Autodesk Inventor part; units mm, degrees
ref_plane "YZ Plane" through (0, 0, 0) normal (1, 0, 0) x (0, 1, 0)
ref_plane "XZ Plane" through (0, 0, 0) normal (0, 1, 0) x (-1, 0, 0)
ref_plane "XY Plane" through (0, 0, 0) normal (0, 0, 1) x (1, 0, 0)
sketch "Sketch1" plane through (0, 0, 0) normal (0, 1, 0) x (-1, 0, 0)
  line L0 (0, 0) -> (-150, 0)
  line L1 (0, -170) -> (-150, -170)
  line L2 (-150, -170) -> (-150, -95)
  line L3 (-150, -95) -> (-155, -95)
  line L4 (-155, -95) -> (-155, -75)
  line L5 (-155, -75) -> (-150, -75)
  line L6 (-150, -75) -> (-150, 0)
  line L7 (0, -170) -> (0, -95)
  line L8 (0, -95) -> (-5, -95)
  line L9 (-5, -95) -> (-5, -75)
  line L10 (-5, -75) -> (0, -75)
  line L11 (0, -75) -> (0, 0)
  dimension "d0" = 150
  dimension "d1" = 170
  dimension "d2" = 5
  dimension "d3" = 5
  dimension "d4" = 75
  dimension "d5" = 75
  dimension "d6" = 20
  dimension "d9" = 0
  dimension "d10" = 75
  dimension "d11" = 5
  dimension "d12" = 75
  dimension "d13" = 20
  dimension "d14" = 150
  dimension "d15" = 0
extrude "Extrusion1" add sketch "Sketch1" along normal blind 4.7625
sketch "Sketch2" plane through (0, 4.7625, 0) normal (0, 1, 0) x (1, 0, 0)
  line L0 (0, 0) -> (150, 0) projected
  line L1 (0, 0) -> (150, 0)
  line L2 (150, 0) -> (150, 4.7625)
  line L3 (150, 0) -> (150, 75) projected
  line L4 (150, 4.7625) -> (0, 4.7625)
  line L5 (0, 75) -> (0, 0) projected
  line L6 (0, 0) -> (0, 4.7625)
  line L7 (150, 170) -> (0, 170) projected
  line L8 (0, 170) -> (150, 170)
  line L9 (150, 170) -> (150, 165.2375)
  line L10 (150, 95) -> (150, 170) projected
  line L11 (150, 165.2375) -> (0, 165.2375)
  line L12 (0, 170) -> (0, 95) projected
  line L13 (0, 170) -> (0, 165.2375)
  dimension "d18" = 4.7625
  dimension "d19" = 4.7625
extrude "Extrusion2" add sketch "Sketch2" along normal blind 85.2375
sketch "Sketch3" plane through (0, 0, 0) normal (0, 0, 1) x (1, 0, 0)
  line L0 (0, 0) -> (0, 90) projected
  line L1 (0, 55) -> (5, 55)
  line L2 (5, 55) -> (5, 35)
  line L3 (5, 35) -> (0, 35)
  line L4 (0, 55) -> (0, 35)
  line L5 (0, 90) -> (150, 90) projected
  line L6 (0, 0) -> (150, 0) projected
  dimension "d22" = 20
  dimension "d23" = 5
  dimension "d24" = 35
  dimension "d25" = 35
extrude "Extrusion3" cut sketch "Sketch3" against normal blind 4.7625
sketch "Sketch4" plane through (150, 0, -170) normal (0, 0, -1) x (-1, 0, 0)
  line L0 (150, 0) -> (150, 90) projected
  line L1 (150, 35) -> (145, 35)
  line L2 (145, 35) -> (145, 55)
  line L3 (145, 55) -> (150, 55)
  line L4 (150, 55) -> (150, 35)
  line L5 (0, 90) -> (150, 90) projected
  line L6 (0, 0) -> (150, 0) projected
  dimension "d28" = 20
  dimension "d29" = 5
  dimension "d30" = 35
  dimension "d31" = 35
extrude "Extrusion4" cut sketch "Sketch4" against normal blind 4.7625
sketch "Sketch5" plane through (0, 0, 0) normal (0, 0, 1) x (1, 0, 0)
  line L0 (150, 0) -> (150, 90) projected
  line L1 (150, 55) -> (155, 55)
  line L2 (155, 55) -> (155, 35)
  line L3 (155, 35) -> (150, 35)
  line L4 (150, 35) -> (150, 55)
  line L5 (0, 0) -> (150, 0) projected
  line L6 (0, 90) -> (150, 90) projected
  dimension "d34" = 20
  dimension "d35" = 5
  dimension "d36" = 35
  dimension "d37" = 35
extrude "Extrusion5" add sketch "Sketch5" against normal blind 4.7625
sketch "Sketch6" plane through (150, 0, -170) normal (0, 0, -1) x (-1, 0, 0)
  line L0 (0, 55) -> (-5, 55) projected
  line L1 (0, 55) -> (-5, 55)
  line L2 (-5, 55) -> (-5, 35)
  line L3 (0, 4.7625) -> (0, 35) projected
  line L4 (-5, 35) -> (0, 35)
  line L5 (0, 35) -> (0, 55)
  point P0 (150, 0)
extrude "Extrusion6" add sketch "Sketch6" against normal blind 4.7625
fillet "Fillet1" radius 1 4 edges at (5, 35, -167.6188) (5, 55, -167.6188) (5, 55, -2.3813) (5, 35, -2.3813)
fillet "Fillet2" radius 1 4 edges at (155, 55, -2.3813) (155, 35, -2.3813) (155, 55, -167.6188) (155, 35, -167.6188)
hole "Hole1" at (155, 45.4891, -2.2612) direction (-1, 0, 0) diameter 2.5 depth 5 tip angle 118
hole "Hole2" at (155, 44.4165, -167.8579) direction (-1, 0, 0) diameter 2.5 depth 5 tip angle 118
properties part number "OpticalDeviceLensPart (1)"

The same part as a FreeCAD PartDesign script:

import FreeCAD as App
import Part
import Sketcher
Q = App.Units.Quantity


def edges_at(feature, points):
    """Names of the edges that pass closest to the given points."""
    edges = feature.Shape.Edges
    near = lambda p: min(range(len(edges)), key=lambda i: edges[i].distToShape(Part.Vertex(*p))[0])
    return sorted({f"Edge{near(p) + 1}" for p in points})


def add_polygon(sketch, points):
    """Adds a closed chain of lines whose ends are joined by coincident constraints."""
    first, n = sketch.GeometryCount, len(points)
    for a, b in zip(points, points[1:] + points[:1]):
        sketch.addGeometry(Part.LineSegment(App.Vector(*a, 0), App.Vector(*b, 0)), False)
    for i in range(n):
        sketch.addConstraint(Sketcher.Constraint("Coincident", first + i, 2, first + (i + 1) % n, 1))

doc = App.newDocument("Part")
body = doc.addObject("PartDesign::Body", "Body")

sketch1 = body.newObject("Sketcher::SketchObject", "Sketch")
sketch1.AttachmentSupport = (doc.getObject("XZ_Plane"), [""])
sketch1.MapMode = "FlatFace"
add_polygon(sketch1, [(0, -75), (0, 0), (150, 0), (150, -75), (155, -75), (155, -95), (150, -95), (150, -170), (0, -170), (0, -95), (5, -95), (5, -75)])
sketch1.addConstraint(Sketcher.Constraint("Vertical", 0))
sketch1.addConstraint(Sketcher.Constraint("Horizontal", 1))
sketch1.addConstraint(Sketcher.Constraint("Vertical", 2))
sketch1.addConstraint(Sketcher.Constraint("Horizontal", 3))
sketch1.addConstraint(Sketcher.Constraint("Vertical", 4))
sketch1.addConstraint(Sketcher.Constraint("Horizontal", 5))
sketch1.addConstraint(Sketcher.Constraint("Vertical", 6))
sketch1.addConstraint(Sketcher.Constraint("Horizontal", 7))
sketch1.addConstraint(Sketcher.Constraint("Vertical", 8))
sketch1.addConstraint(Sketcher.Constraint("Horizontal", 9))
sketch1.addConstraint(Sketcher.Constraint("Vertical", 10))
sketch1.addConstraint(Sketcher.Constraint("Horizontal", 11))
sketch1.addConstraint(Sketcher.Constraint("Coincident", 0, 2, -1, 1))
sketch1.addConstraint(Sketcher.Constraint("PointOnObject", 7, 2, -2))
sketch1.addConstraint(Sketcher.Constraint("Horizontal", 5, 2, 8, 2))
sketch1.addConstraint(Sketcher.Constraint("Horizontal", 3, 2, 10, 2))
sketch1.addConstraint(Sketcher.Constraint("Vertical", 2, 2, 5, 2))
sketch1.addConstraint(Sketcher.Constraint("Equal", 5, 9))
sketch1.addConstraint(Sketcher.Constraint("Equal", 2, 6))
sketch1.addConstraint(Sketcher.Constraint("DistanceX", 1, 1, 1, 2, Q("150 mm")))
sketch1.addConstraint(Sketcher.Constraint("DistanceX", 3, 1, 3, 2, Q("5 mm")))
sketch1.addConstraint(Sketcher.Constraint("DistanceY", 0, 1, 0, 2, Q("75 mm")))
sketch1.addConstraint(Sketcher.Constraint("DistanceY", 4, 2, 4, 1, Q("20 mm")))
pad1 = body.newObject("PartDesign::Pad", "Pad")
pad1.Profile = sketch1
pad1.Length = 4.7625
pad1.Reversed = True

sketch2 = body.newObject("Sketcher::SketchObject", "Sketch001")
sketch2.AttachmentSupport = (doc.getObject("XZ_Plane"), [""])
sketch2.MapMode = "FlatFace"
sketch2.AttachmentOffset = App.Placement(App.Vector(0, 0, -4.7625), App.Rotation())
add_polygon(sketch2, [(0, -4.7625), (0, 0), (150, 0), (150, -4.7625)])
add_polygon(sketch2, [(150, -165.2375), (150, -170), (0, -170), (0, -165.2375)])
sketch2.addConstraint(Sketcher.Constraint("Vertical", 0))
sketch2.addConstraint(Sketcher.Constraint("Horizontal", 1))
sketch2.addConstraint(Sketcher.Constraint("Vertical", 2))
sketch2.addConstraint(Sketcher.Constraint("Horizontal", 3))
sketch2.addConstraint(Sketcher.Constraint("Vertical", 4))
sketch2.addConstraint(Sketcher.Constraint("Horizontal", 5))
sketch2.addConstraint(Sketcher.Constraint("Vertical", 6))
sketch2.addConstraint(Sketcher.Constraint("Horizontal", 7))
sketch2.addConstraint(Sketcher.Constraint("Coincident", 0, 2, -1, 1))
sketch2.addConstraint(Sketcher.Constraint("PointOnObject", 5, 2, -2))
sketch2.addConstraint(Sketcher.Constraint("Vertical", 2, 2, 4, 2))
sketch2.addConstraint(Sketcher.Constraint("Equal", 2, 4))
sketch2.addConstraint(Sketcher.Constraint("DistanceX", 1, 1, 1, 2, Q("150 mm")))
sketch2.addConstraint(Sketcher.Constraint("DistanceY", 0, 1, 0, 2, Q("4.7625 mm")))
sketch2.addConstraint(Sketcher.Constraint("DistanceY", 4, 2, -1, 1, Q("170 mm")))
pad2 = body.newObject("PartDesign::Pad", "Pad001")
pad2.Profile = sketch2
pad2.Length = 85.2375
pad2.Reversed = True

sketch3 = body.newObject("Sketcher::SketchObject", "Sketch002")
sketch3.AttachmentSupport = (doc.getObject("XY_Plane"), [""])
sketch3.MapMode = "FlatFace"
add_polygon(sketch3, [(0, 55), (0, 35), (5, 35), (5, 55)])
sketch3.addConstraint(Sketcher.Constraint("Vertical", 0))
sketch3.addConstraint(Sketcher.Constraint("Horizontal", 1))
sketch3.addConstraint(Sketcher.Constraint("Vertical", 2))
sketch3.addConstraint(Sketcher.Constraint("Horizontal", 3))
sketch3.addConstraint(Sketcher.Constraint("PointOnObject", 0, 2, -2))
sketch3.addConstraint(Sketcher.Constraint("DistanceX", 1, 1, 1, 2, Q("5 mm")))
sketch3.addConstraint(Sketcher.Constraint("DistanceY", 0, 2, 0, 1, Q("20 mm")))
sketch3.addConstraint(Sketcher.Constraint("DistanceY", -1, 1, 0, 2, Q("35 mm")))
pocket1 = body.newObject("PartDesign::Pocket", "Pocket")
pocket1.Profile = sketch3
pocket1.Length = 4.7625

sketch4 = body.newObject("Sketcher::SketchObject", "Sketch003")
sketch4.AttachmentSupport = (doc.getObject("XY_Plane"), [""])
sketch4.MapMode = "FlatFace"
sketch4.AttachmentOffset = App.Placement(App.Vector(0, 0, -170), App.Rotation())
add_polygon(sketch4, [(5, 35), (0, 35), (0, 55), (5, 55)])
sketch4.addConstraint(Sketcher.Constraint("Horizontal", 0))
sketch4.addConstraint(Sketcher.Constraint("Vertical", 1))
sketch4.addConstraint(Sketcher.Constraint("Horizontal", 2))
sketch4.addConstraint(Sketcher.Constraint("Vertical", 3))
sketch4.addConstraint(Sketcher.Constraint("PointOnObject", 0, 2, -2))
sketch4.addConstraint(Sketcher.Constraint("DistanceX", 0, 2, 0, 1, Q("5 mm")))
sketch4.addConstraint(Sketcher.Constraint("DistanceY", 1, 1, 1, 2, Q("20 mm")))
sketch4.addConstraint(Sketcher.Constraint("DistanceY", -1, 1, 0, 2, Q("35 mm")))
pocket2 = body.newObject("PartDesign::Pocket", "Pocket001")
pocket2.Profile = sketch4
pocket2.Length = 4.7625
pocket2.Reversed = True

sketch5 = body.newObject("Sketcher::SketchObject", "Sketch004")
sketch5.AttachmentSupport = (doc.getObject("XY_Plane"), [""])
sketch5.MapMode = "FlatFace"
add_polygon(sketch5, [(150, 55), (150, 35), (155, 35), (155, 55)])
sketch5.addConstraint(Sketcher.Constraint("Vertical", 0))
sketch5.addConstraint(Sketcher.Constraint("Horizontal", 1))
sketch5.addConstraint(Sketcher.Constraint("Vertical", 2))
sketch5.addConstraint(Sketcher.Constraint("Horizontal", 3))
sketch5.addConstraint(Sketcher.Constraint("DistanceX", 1, 1, 1, 2, Q("5 mm")))
sketch5.addConstraint(Sketcher.Constraint("DistanceY", 0, 2, 0, 1, Q("20 mm")))
sketch5.addConstraint(Sketcher.Constraint("DistanceY", -1, 1, 0, 2, Q("35 mm")))
sketch5.addConstraint(Sketcher.Constraint("DistanceX", -1, 1, 0, 2, Q("150 mm")))
pad3 = body.newObject("PartDesign::Pad", "Pad002")
pad3.Profile = sketch5
pad3.Length = 4.7625
pad3.Reversed = True

sketch6 = body.newObject("Sketcher::SketchObject", "Sketch005")
sketch6.AttachmentSupport = (doc.getObject("XY_Plane"), [""])
sketch6.MapMode = "FlatFace"
sketch6.AttachmentOffset = App.Placement(App.Vector(0, 0, -170), App.Rotation())
add_polygon(sketch6, [(150, 35), (150, 55), (155, 55), (155, 35)])
sketch6.addConstraint(Sketcher.Constraint("Vertical", 0))
sketch6.addConstraint(Sketcher.Constraint("Horizontal", 1))
sketch6.addConstraint(Sketcher.Constraint("Vertical", 2))
sketch6.addConstraint(Sketcher.Constraint("Horizontal", 3))
sketch6.addConstraint(Sketcher.Constraint("DistanceX", 1, 1, 1, 2, Q("5 mm")))
sketch6.addConstraint(Sketcher.Constraint("DistanceY", 0, 1, 0, 2, Q("20 mm")))
sketch6.addConstraint(Sketcher.Constraint("DistanceX", -1, 1, 0, 2, Q("150 mm")))
sketch6.addConstraint(Sketcher.Constraint("DistanceY", -1, 1, 0, 2, Q("55 mm")))
pad4 = body.newObject("PartDesign::Pad", "Pad003")
pad4.Profile = sketch6
pad4.Length = 4.7625
doc.recompute()

fillet = body.newObject("PartDesign::Fillet", "Fillet")
fillet.Base = (pad4, edges_at(pad4, [
    (5, 35, -167.619),
    (5, 55, -167.619),
    (5, 55, -2.381),
    (5, 35, -2.381),
]))
fillet.Radius = 1
doc.recompute()

fillet2 = body.newObject("PartDesign::Fillet", "Fillet001")
fillet2.Base = (fillet, edges_at(fillet, [
    (155, 55, -2.381),
    (155, 35, -2.381),
    (155, 55, -167.619),
    (155, 35, -167.619),
]))
fillet2.Radius = 1

sketch7 = body.newObject("Sketcher::SketchObject", "Sketch006")
sketch7.AttachmentSupport = (doc.getObject("YZ_Plane"), [""])
sketch7.MapMode = "FlatFace"
sketch7.AttachmentOffset = App.Placement(App.Vector(0, 0, 155), App.Rotation())
sketch7.addGeometry(Part.Circle(App.Vector(45.4891, -2.2612, 0), App.Vector(0, 0, 1), 1.25), False)
sketch7.addConstraint(Sketcher.Constraint("Diameter", 0, Q("2.5 mm")))
sketch7.addConstraint(Sketcher.Constraint("DistanceX", -1, 1, 0, 3, Q("45.489 mm")))
sketch7.addConstraint(Sketcher.Constraint("DistanceY", 0, 3, -1, 1, Q("2.2612 mm")))
doc.recompute()
hole = body.newObject("PartDesign::Hole", "Hole")
hole.Profile = sketch7
hole.ThreadType = "None"
hole.Diameter = 2.5
hole.DepthType = "Dimension"
hole.Depth = 5
hole.DrillPoint = "Angled"
hole.DrillPointAngle = 118

sketch8 = body.newObject("Sketcher::SketchObject", "Sketch007")
sketch8.AttachmentSupport = (doc.getObject("YZ_Plane"), [""])
sketch8.MapMode = "FlatFace"
sketch8.AttachmentOffset = App.Placement(App.Vector(0, 0, 155), App.Rotation())
sketch8.addGeometry(Part.Circle(App.Vector(44.4165, -167.8579, 0), App.Vector(0, 0, 1), 1.25), False)
sketch8.addConstraint(Sketcher.Constraint("Diameter", 0, Q("2.5 mm")))
sketch8.addConstraint(Sketcher.Constraint("DistanceY", 0, 3, -1, 1, Q("167.858 mm")))
sketch8.addConstraint(Sketcher.Constraint("DistanceX", -1, 1, 0, 3, Q("44.4165 mm")))
doc.recompute()
hole2 = body.newObject("PartDesign::Hole", "Hole001")
hole2.Profile = sketch8
hole2.ThreadType = "None"
hole2.Diameter = 2.5
hole2.DepthType = "Dimension"
hole2.Depth = 5
hole2.DrillPoint = "Angled"
hole2.DrillPointAngle = 118

doc.recompute()
